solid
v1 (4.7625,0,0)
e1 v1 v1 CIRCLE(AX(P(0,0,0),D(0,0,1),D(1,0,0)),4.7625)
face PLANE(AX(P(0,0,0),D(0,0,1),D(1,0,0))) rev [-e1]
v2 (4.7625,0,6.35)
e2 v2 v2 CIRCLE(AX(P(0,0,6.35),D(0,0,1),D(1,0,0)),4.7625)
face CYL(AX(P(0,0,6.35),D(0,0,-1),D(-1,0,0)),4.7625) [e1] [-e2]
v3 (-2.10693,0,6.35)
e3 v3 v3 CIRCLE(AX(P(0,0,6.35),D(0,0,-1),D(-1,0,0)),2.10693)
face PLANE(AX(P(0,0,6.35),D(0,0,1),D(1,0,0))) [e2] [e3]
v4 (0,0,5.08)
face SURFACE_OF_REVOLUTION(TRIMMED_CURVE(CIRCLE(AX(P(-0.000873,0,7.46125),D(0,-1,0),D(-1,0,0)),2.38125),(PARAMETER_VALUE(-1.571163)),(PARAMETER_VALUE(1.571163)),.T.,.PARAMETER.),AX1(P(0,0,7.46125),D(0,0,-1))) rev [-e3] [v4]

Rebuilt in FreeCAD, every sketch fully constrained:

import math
import FreeCAD as App
import Part
import Sketcher

V = App.Vector
Q = App.Units.Quantity

doc = App.newDocument("Part")
params = doc.addObject("Spreadsheet::Sheet", "Params")
for row, (alias, value) in enumerate([
    ("sketch1_diameter", "0.375 in"),
    ("pad1_length", "0.25 in"),
    ("sketch2_radius", "0.09375 in"),
    ("sketch2_height", "0.05 in"),
    ("groove_angle", "360 deg"),
], start=1):
    params.set(f"A{row}", alias)
    params.set(f"B{row}", "=" + value)
    params.setAlias(f"B{row}", alias)

body = doc.addObject("PartDesign::Body", "Body")

# Sketch on XY plane
sketch1 = body.newObject("Sketcher::SketchObject", "Sketch")
sketch1.AttachmentSupport = (doc.getObject("XY_Plane"), [""])
sketch1.MapMode = "FlatFace"
sketch1.addGeometry(Part.Circle(V(0, 0, 0), V(0, 0, 1), 4.7625), False)
sketch1.addConstraint([
    Sketcher.Constraint("Coincident", 0, 3, -1, 1),
    Sketcher.Constraint("Diameter", 0, Q("0.375 in")),
])
sketch1.setExpression("Constraints[1]", "Params.sketch1_diameter")
pad1 = body.newObject("PartDesign::Pad", "Pad")
pad1.Profile = sketch1
pad1.setExpression("Length", "Params.pad1_length")

# Sketch on XZ plane
sketch2 = body.newObject("Sketcher::SketchObject", "Sketch001")
sketch2.AttachmentSupport = (doc.getObject("XZ_Plane"), [""])
sketch2.MapMode = "FlatFace"
sketch2.addGeometry([
    Part.LineSegment(V(0, 5.08, 0), V(0, 6.35, 0)),
    Part.LineSegment(V(0, 6.35, 0), V(2.10693, 6.35, 0)),
    Part.ArcOfCircle(Part.Circle(V(0.000873, 7.46125, 0), V(0, 0, 1), 2.38125), math.radians(-90.02101), math.radians(-27.818135)),
], False)
sketch2.addConstraint([
    Sketcher.Constraint("Coincident", 0, 2, 1, 1),
    Sketcher.Constraint("Coincident", 1, 2, 2, 2),
    Sketcher.Constraint("Coincident", 2, 1, 0, 1),
    Sketcher.Constraint("Vertical", 0),
    Sketcher.Constraint("Horizontal", 1),
    Sketcher.Constraint("PointOnObject", 0, 2, -2),
    Sketcher.Constraint("Radius", 2, Q("0.09375 in")),
    Sketcher.Constraint("DistanceY", 0, 1, 0, 2, Q("0.05 in")),
    Sketcher.Constraint("DistanceY", -1, 1, 2, 1, Q("0.2 in")),
    Sketcher.Constraint("DistanceX", 1, 1, 1, 2, Q("2.10693 mm")),
])
sketch2.setExpression("Constraints[6]", "Params.sketch2_radius")
sketch2.setExpression("Constraints[7]", "Params.sketch2_height")
groove = body.newObject("PartDesign::Groove", "Groove")
groove.Profile = sketch2
groove.ReferenceAxis = (sketch2, ["V_Axis"])
groove.setExpression("Angle", "Params.groove_angle")

doc.recompute()
